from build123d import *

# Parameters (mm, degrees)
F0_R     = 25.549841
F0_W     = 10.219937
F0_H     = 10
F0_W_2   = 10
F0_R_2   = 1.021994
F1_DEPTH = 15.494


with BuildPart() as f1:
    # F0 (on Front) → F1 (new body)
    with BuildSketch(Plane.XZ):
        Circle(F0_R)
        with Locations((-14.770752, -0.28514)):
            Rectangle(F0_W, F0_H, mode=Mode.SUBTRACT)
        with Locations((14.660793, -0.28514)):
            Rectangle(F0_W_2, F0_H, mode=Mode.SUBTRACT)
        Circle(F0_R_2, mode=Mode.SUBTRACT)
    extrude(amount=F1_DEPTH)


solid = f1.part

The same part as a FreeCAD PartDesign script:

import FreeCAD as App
import Part
import Sketcher

V = App.Vector

doc = App.newDocument("Part")
body = doc.addObject("PartDesign::Body", "Body")

# Sketch on XZ plane
sketch1 = doc.addObject("Sketcher::SketchObject", "Sketch")
body.addObject(sketch1)
sketch1.AttachmentSupport = (doc.XZ_Plane, [""])
sketch1.MapMode = "FlatFace"
sketch1.addGeometry([
    Part.Circle(V(0, 0, 0), V(0, 0, 1), 25.5),  # 0
    Part.LineSegment(V(-9.7, -5.3, 0), V(-19.9, -5.3, 0)),  # 1
    Part.LineSegment(V(-19.9, -5.3, 0), V(-19.9, 4.7, 0)),  # 2
    Part.LineSegment(V(-19.9, 4.7, 0), V(-9.7, 4.7, 0)),  # 3
    Part.LineSegment(V(-9.7, 4.7, 0), V(-9.7, -5.3, 0)),  # 4
    Part.Circle(V(0, 0, 0), V(0, 0, 1), 1),  # 5
    Part.LineSegment(V(19.7, -5.3, 0), V(9.7, -5.3, 0)),  # 6
    Part.LineSegment(V(9.7, -5.3, 0), V(9.7, 4.7, 0)),  # 7
    Part.LineSegment(V(9.7, 4.7, 0), V(19.7, 4.7, 0)),  # 8
    Part.LineSegment(V(19.7, 4.7, 0), V(19.7, -5.3, 0)),  # 9
], False)
sketch1.addConstraint([
    Sketcher.Constraint("Coincident", 1, 2, 2, 1),
    Sketcher.Constraint("Coincident", 2, 2, 3, 1),
    Sketcher.Constraint("Coincident", 3, 2, 4, 1),
    Sketcher.Constraint("Coincident", 4, 2, 1, 1),
    Sketcher.Constraint("Coincident", 6, 2, 7, 1),
    Sketcher.Constraint("Coincident", 7, 2, 8, 1),
    Sketcher.Constraint("Coincident", 8, 2, 9, 1),
    Sketcher.Constraint("Coincident", 9, 2, 6, 1),
    Sketcher.Constraint("Horizontal", 1),
    Sketcher.Constraint("Vertical", 2),
    Sketcher.Constraint("Horizontal", 3),
    Sketcher.Constraint("Vertical", 4),
    Sketcher.Constraint("Horizontal", 6),
    Sketcher.Constraint("Vertical", 7),
    Sketcher.Constraint("Horizontal", 8),
    Sketcher.Constraint("Vertical", 9),
    Sketcher.Constraint("Coincident", 0, 3, -1, 1),
    Sketcher.Constraint("Coincident", 5, 3, -1, 1),
    Sketcher.Constraint("Symmetric", 4, 2, 6, 2, -2),
    Sketcher.Constraint("Horizontal", 3, 2, 7, 2),
    Sketcher.Constraint("Equal", 8, 2),
    Sketcher.Constraint("DistanceX", 6, 2, 6, 1, 10.0),
    Sketcher.Constraint("Diameter", 5, 2.043988),
    Sketcher.Constraint("Diameter", 0, 51.099682),
    Sketcher.Constraint("DistanceX", 1, 2, 1, 1, 10.219937),
    Sketcher.Constraint("DistanceX", 1, 2, -1, 1, 19.88072),
    Sketcher.Constraint("DistanceY", 1, 2, -1, 1, 5.28514),
])
pad1 = doc.addObject("PartDesign::Pad", "Pad")
body.addObject(pad1)
pad1.Profile = sketch1
pad1.Length = 15.494

doc.recompute()
